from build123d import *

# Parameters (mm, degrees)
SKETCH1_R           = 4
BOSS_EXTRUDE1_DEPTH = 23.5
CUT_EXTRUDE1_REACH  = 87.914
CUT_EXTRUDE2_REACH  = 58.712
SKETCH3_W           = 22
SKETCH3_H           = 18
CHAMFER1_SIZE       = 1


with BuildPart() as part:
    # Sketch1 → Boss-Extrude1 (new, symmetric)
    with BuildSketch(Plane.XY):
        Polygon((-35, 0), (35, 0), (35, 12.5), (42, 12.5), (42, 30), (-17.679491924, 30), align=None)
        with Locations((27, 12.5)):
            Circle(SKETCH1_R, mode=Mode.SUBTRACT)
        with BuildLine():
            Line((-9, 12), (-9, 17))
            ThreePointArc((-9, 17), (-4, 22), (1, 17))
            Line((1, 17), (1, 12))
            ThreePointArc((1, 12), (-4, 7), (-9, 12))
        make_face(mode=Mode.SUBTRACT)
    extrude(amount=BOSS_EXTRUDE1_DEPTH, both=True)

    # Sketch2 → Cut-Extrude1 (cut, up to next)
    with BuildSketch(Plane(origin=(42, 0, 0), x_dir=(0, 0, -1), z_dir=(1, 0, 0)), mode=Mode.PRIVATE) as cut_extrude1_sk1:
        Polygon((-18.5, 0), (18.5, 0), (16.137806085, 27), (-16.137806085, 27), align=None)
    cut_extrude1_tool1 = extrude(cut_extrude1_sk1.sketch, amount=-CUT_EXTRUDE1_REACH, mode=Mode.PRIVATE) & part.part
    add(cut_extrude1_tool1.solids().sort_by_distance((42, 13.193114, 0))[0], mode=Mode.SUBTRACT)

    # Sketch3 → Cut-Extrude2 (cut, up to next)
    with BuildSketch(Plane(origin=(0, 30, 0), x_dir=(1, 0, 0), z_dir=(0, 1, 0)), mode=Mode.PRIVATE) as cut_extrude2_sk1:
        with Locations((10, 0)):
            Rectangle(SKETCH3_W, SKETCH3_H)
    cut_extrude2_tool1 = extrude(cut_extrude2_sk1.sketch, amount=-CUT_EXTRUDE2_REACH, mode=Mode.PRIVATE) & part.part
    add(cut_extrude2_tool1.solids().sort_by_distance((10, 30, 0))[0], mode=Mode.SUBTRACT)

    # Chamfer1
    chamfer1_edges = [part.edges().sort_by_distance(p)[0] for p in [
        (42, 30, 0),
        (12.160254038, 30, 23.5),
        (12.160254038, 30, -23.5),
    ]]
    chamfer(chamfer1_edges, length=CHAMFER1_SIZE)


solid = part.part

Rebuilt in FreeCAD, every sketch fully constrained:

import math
import FreeCAD as App
import Part
import Sketcher
Q = App.Units.Quantity


def edges_at(feature, points):
    """Names of the edges that pass closest to the given points."""
    edges = feature.Shape.Edges
    near = lambda p: min(range(len(edges)), key=lambda i: edges[i].distToShape(Part.Vertex(*p))[0])
    return sorted({f"Edge{near(p) + 1}" for p in points})


def add_polygon(sketch, points):
    """Adds a closed chain of lines whose ends are joined by coincident constraints."""
    first, n = sketch.GeometryCount, len(points)
    for a, b in zip(points, points[1:] + points[:1]):
        sketch.addGeometry(Part.LineSegment(App.Vector(*a, 0), App.Vector(*b, 0)), False)
    for i in range(n):
        sketch.addConstraint(Sketcher.Constraint("Coincident", first + i, 2, first + (i + 1) % n, 1))

doc = App.newDocument("Part")
params = doc.addObject("Spreadsheet::Sheet", "Params")
for row, (alias, value) in enumerate([
    ("sketch1_diameter", "8 mm"),
    ("sketch1_radius", "5 mm"),
    ("sketch1_width", "70 mm"),
    ("sketch1_width2", "7 mm"),
    ("sketch1_height", "5 mm"),
    ("pad1_length", "47 mm"),
    ("sketch2_height", "37 mm"),
    ("sketch3_width", "22 mm"),
    ("sketch3_height", "18 mm"),
    ("chamfer_size", "1 mm"),
], start=1):
    params.set(f"A{row}", alias)
    params.set(f"B{row}", "=" + value)
    params.setAlias(f"B{row}", alias)

body = doc.addObject("PartDesign::Body", "Body")

# Sketch on XY plane
sketch1 = doc.addObject("Sketcher::SketchObject", "Sketch")
body.addObject(sketch1)
sketch1.AttachmentSupport = (doc.XY_Plane, [""])
sketch1.MapMode = "FlatFace"
add_polygon(sketch1, [(-35, 0), (35, 0), (35, 12.5), (42, 12.5), (42, 30), (-17.679492, 30)])  # lines 0-5
sketch1.addGeometry(Part.Circle(App.Vector(27, 12.5, 0), App.Vector(0, 0, 1), 4), False)  # 6
sketch1.addGeometry(Part.ArcOfCircle(Part.Circle(App.Vector(-4, 12, 0), App.Vector(0, 0, 1), 5), math.radians(180), math.radians(360)), False)  # 7
sketch1.addGeometry(Part.LineSegment(App.Vector(-9, 12, 0), App.Vector(-9, 17, 0)), False)  # 8
sketch1.addGeometry(Part.ArcOfCircle(Part.Circle(App.Vector(-4, 17, 0), App.Vector(0, 0, 1), 5), math.radians(0), math.radians(180)), False)  # 9
sketch1.addGeometry(Part.LineSegment(App.Vector(1, 17, 0), App.Vector(1, 12, 0)), False)  # 10
sketch1.addConstraint([
    Sketcher.Constraint("Tangent", 7, 1, 8, 1),
    Sketcher.Constraint("Tangent", 8, 2, 9, 2),
    Sketcher.Constraint("Tangent", 9, 1, 10, 1),
    Sketcher.Constraint("Tangent", 10, 2, 7, 2),
    Sketcher.Constraint("Horizontal", 0),
    Sketcher.Constraint("Vertical", 1),
    Sketcher.Constraint("Horizontal", 2),
    Sketcher.Constraint("Vertical", 3),
    Sketcher.Constraint("Horizontal", 4),
    Sketcher.Constraint("Vertical", 8),
    Sketcher.Constraint("Vertical", 10),
    Sketcher.Constraint("Symmetric", 0, 2, 5, 2, -1, 1),
    Sketcher.Constraint("Horizontal", 6, 3, 1, 2),
    Sketcher.Constraint("Diameter", 6, 8.0),
    Sketcher.Constraint("Radius", 7, 5.0),
    Sketcher.Constraint("DistanceX", 0, 1, 0, 2, 70.0),
    Sketcher.Constraint("DistanceX", 2, 1, 2, 2, 7.0),
    Sketcher.Constraint("DistanceY", 8, 1, 8, 2, 5.0),
    Sketcher.Constraint("Angle", 5, Q("-120 deg")),
    Sketcher.Constraint("DistanceY", 1, 1, 1, 2, 12.5),
    Sketcher.Constraint("DistanceY", 3, 1, 3, 2, 17.5),
    Sketcher.Constraint("DistanceX", -1, 1, 6, 3, 27.0),
    Sketcher.Constraint("DistanceX", 7, 3, -1, 1, 4.0),
    Sketcher.Constraint("DistanceY", -1, 1, 7, 3, 12.0),
])
sketch1.setExpression("Constraints[19]", "Params.sketch1_diameter")
sketch1.setExpression("Constraints[20]", "Params.sketch1_radius")
sketch1.setExpression("Constraints[21]", "Params.sketch1_width")
sketch1.setExpression("Constraints[22]", "Params.sketch1_width2")
sketch1.setExpression("Constraints[23]", "Params.sketch1_height")
pad1 = doc.addObject("PartDesign::Pad", "Pad")
body.addObject(pad1)
pad1.Profile = sketch1
pad1.setExpression("Length", "Params.pad1_length")
pad1.Midplane = True

# Sketch on YZ plane
sketch2 = doc.addObject("Sketcher::SketchObject", "Sketch001")
body.addObject(sketch2)
sketch2.AttachmentSupport = (doc.YZ_Plane, [""])
sketch2.MapMode = "FlatFace"
sketch2.AttachmentOffset = App.Placement(App.Vector(0, 0, 42), App.Rotation())
add_polygon(sketch2, [(0, 18.5), (0, -18.5), (27, -16.137806), (27, 16.137806)])  # lines 0-3
sketch2.addConstraint([
    Sketcher.Constraint("Vertical", 0),
    Sketcher.Constraint("Vertical", 2),
    Sketcher.Constraint("Symmetric", 0, 2, 3, 2, -1, 1),
    Sketcher.Constraint("Equal", 1, 3),
    Sketcher.Constraint("DistanceY", 0, 2, 0, 1, 37.0),
    Sketcher.Constraint("Angle", 1, Q("5 deg")),
    Sketcher.Constraint("DistanceX", -1, 1, 1, 2, 27.0),
])
sketch2.setExpression("Constraints[8]", "Params.sketch2_height")
pocket1 = doc.addObject("PartDesign::Pocket", "Pocket")
body.addObject(pocket1)
pocket1.Profile = sketch2
pocket1.Type = "UpToFirst"

# Sketch on XZ plane
sketch3 = doc.addObject("Sketcher::SketchObject", "Sketch002")
body.addObject(sketch3)
sketch3.AttachmentSupport = (doc.XZ_Plane, [""])
sketch3.MapMode = "FlatFace"
sketch3.AttachmentOffset = App.Placement(App.Vector(0, 0, -30), App.Rotation())
add_polygon(sketch3, [(-1, -9), (-1, 9), (21, 9), (21, -9)])  # lines 0-3
sketch3.addConstraint([
    Sketcher.Constraint("Vertical", 0),
    Sketcher.Constraint("Horizontal", 1),
    Sketcher.Constraint("Vertical", 2),
    Sketcher.Constraint("Horizontal", 3),
    Sketcher.Constraint("DistanceX", 1, 1, 1, 2, 22.0),
    Sketcher.Constraint("DistanceY", 0, 1, 0, 2, 18.0),
    Sketcher.Constraint("DistanceX", 0, 2, -1, 1, 1.0),
    Sketcher.Constraint("DistanceY", -1, 1, 0, 2, 9.0),
])
sketch3.setExpression("Constraints[8]", "Params.sketch3_width")
sketch3.setExpression("Constraints[9]", "Params.sketch3_height")
pocket2 = doc.addObject("PartDesign::Pocket", "Pocket001")
body.addObject(pocket2)
pocket2.Profile = sketch3
pocket2.Type = "UpToFirst"
pocket2.Reversed = True
doc.recompute()

chamfer = doc.addObject("PartDesign::Chamfer", "Chamfer")
body.addObject(chamfer)
chamfer.Base = (pocket2, edges_at(pocket2, [(42, 30, 0), (12.16, 30, 23.5), (12.16, 30, -23.5)]))
chamfer.setExpression("Size", "Params.chamfer_size")

doc.recompute()
